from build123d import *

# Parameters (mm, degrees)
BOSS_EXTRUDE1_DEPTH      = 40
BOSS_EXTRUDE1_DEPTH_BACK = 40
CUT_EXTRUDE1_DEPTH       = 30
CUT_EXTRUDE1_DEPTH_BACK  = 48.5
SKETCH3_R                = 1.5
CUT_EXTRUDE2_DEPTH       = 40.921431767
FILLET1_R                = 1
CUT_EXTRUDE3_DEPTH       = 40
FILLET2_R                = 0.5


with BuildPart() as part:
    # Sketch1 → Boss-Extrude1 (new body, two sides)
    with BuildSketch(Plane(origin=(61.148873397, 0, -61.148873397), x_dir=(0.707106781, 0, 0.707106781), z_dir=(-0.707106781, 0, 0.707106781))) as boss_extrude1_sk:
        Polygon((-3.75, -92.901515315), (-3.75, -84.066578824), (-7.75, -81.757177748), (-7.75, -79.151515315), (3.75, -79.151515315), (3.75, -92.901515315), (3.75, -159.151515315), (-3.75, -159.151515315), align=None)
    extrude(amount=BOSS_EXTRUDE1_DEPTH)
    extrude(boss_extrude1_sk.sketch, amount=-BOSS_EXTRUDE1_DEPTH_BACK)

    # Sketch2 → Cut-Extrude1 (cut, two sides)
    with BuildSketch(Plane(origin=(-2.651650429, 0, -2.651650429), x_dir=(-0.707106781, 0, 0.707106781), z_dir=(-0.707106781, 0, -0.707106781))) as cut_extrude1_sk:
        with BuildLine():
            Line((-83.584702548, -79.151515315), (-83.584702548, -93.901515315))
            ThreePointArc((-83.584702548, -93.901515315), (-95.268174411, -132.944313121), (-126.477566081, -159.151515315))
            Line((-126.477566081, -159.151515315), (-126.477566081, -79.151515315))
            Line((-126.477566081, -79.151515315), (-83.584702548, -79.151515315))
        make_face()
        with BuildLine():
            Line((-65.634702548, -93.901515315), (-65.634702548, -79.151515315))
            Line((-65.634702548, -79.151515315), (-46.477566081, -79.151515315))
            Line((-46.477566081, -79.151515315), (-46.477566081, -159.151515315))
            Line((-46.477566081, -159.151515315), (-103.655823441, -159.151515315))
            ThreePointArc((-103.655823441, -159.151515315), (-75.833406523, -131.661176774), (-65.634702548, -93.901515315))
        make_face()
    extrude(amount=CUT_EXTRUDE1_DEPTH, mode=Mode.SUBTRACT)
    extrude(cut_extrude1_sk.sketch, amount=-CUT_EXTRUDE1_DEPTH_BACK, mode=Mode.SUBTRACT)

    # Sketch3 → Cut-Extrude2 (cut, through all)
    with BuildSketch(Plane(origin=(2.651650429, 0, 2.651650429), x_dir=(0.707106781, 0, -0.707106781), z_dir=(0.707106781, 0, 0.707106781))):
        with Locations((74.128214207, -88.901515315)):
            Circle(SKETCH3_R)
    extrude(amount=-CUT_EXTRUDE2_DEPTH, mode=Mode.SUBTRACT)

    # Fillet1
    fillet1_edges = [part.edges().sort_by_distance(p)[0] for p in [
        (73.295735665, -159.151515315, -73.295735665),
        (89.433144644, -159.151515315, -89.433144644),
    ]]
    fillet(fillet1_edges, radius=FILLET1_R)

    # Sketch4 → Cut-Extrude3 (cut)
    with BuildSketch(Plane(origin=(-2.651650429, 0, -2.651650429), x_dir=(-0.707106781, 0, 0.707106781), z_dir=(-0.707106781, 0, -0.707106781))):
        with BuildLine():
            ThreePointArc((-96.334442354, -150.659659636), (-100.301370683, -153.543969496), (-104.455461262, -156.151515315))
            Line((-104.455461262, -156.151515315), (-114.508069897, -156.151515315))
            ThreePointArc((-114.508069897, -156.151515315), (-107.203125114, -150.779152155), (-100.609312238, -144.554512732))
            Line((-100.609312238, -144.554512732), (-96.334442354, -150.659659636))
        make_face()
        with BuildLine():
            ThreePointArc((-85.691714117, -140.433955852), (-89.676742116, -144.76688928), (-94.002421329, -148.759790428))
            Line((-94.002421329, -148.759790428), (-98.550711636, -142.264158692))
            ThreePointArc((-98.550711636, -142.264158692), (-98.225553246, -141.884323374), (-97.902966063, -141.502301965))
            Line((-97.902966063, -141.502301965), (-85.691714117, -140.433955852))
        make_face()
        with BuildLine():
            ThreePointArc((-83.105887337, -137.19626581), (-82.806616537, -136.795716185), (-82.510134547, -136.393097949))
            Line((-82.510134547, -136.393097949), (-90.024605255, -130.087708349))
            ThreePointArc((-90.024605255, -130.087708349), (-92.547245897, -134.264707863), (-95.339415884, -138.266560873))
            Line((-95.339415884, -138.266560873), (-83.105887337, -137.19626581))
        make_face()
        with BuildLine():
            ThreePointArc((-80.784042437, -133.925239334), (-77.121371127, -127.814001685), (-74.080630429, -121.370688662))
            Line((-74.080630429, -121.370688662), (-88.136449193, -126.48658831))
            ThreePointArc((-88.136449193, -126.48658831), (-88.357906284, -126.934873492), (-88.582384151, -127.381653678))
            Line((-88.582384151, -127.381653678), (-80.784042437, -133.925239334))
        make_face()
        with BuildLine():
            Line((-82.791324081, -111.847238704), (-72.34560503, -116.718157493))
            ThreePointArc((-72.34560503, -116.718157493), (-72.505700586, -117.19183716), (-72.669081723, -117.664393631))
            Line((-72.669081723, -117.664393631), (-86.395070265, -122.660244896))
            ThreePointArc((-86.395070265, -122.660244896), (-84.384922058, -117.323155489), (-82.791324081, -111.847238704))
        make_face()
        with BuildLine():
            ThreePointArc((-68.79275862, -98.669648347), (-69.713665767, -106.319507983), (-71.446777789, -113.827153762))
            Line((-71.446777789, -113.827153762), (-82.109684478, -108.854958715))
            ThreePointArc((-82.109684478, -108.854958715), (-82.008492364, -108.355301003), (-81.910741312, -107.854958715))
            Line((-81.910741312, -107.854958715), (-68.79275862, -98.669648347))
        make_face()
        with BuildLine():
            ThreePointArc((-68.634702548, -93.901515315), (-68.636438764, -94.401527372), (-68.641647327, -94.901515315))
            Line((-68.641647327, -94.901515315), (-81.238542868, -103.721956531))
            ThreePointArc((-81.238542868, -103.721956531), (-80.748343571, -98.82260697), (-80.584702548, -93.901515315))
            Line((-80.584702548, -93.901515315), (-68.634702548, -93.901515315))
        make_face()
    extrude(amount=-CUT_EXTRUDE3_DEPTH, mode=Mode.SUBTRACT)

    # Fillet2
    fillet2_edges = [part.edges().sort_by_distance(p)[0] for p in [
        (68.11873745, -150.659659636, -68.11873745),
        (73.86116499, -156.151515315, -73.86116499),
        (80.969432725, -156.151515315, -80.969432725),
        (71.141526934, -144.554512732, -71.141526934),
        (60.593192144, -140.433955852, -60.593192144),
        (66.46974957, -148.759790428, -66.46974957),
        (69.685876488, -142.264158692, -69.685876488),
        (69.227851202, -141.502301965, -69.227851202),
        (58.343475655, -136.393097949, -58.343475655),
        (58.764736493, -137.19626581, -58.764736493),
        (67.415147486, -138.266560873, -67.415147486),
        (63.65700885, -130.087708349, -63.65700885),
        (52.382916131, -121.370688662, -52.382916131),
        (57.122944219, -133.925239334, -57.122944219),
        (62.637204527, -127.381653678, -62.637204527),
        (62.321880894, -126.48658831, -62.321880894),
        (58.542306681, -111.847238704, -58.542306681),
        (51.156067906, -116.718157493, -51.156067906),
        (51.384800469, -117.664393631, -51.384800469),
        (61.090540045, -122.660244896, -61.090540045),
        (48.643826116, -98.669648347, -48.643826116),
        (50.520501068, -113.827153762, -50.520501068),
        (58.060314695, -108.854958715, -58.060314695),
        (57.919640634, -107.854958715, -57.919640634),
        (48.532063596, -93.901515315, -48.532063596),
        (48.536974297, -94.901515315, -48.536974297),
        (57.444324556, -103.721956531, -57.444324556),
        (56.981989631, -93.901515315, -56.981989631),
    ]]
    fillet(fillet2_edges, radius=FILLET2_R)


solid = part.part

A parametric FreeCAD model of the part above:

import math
import FreeCAD as App
import Part
import Sketcher
Q = App.Units.Quantity


def edges_at(feature, points):
    """Names of the edges that pass closest to the given points."""
    edges = feature.Shape.Edges
    near = lambda p: min(range(len(edges)), key=lambda i: edges[i].distToShape(Part.Vertex(*p))[0])
    return sorted({f"Edge{near(p) + 1}" for p in points})


def add_polygon(sketch, points):
    """Adds a closed chain of lines whose ends are joined by coincident constraints."""
    first, n = sketch.GeometryCount, len(points)
    for a, b in zip(points, points[1:] + points[:1]):
        sketch.addGeometry(Part.LineSegment(App.Vector(*a, 0), App.Vector(*b, 0)), False)
    for i in range(n):
        sketch.addConstraint(Sketcher.Constraint("Coincident", first + i, 2, first + (i + 1) % n, 1))

doc = App.newDocument("Part")
params = doc.addObject("Spreadsheet::Sheet", "Params")
for row, (alias, value) in enumerate([
    ("sketch1_height", "80 mm"),
    ("sketch1_width", "7.5 mm"),
    ("sketch1_width2", "11.5 mm"),
    ("pad1_length", "40 mm"),
    ("pad1_length2", "40 mm"),
    ("sketch2_radius", "75 mm"),
    ("sketch2_height", "80 mm"),
    ("sketch2_height2", "14.75 mm"),
    ("sketch3_diameter", "3 mm"),
    ("fillet_radius", "1 mm"),
    ("sketch4_radius", "72 mm"),
    ("sketch4_radius2", "72 mm"),
    ("sketch4_radius3", "72 mm"),
    ("sketch4_radius4", "72 mm"),
    ("sketch4_width", "11.95 mm"),
    ("pocket3_length", "40 mm"),
    ("fillet2_radius", "0.5 mm"),
], start=1):
    params.set(f"A{row}", alias)
    params.set(f"B{row}", "=" + value)
    params.setAlias(f"B{row}", alias)

body = doc.addObject("PartDesign::Body", "Body")

# Sketch on an angled plane
sketch1 = doc.addObject("Sketcher::SketchObject", "Sketch")
body.addObject(sketch1)
sketch1.Placement = App.Placement(App.Vector(61.148873, 0, -61.148873), App.Rotation(App.Vector(0.707106781, 0, 0.707106781), App.Vector(0, 0.999999999, 0), App.Vector(-0.707106781, 0, 0.707106781), "ZXY"))
add_polygon(sketch1, [(-3.7, -84.1), (-3.7, -159.2), (3.7, -159.2), (3.7, -79.2), (-7.7, -79.2), (-7.7, -81.8)])  # lines 0-5
sketch1.addConstraint(Sketcher.Constraint("Vertical", 0))
sketch1.addConstraint(Sketcher.Constraint("Horizontal", 1))
sketch1.addConstraint(Sketcher.Constraint("Vertical", 2))
sketch1.addConstraint(Sketcher.Constraint("Horizontal", 3))
sketch1.addConstraint(Sketcher.Constraint("Vertical", 4))
sketch1.addConstraint(Sketcher.Constraint("DistanceY", 2, 1, 2, 2, 80.0))
sketch1.addConstraint(Sketcher.Constraint("Angle", 5, Q("-30 deg")))
sketch1.addConstraint(Sketcher.Constraint("DistanceX", 1, 1, 1, 2, 7.5))
sketch1.addConstraint(Sketcher.Constraint("DistanceX", 3, 2, 3, 1, 11.5))
sketch1.addConstraint(Sketcher.Constraint("DistanceX", 0, 2, -1, 1, 3.75))
sketch1.addConstraint(Sketcher.Constraint("DistanceY", 0, 2, 0, 1, 75.084936))
sketch1.addConstraint(Sketcher.Constraint("DistanceY", 5, 2, -1, 1, 84.066579))
sketch1.setExpression("Constraints[11]", "Params.sketch1_height")
sketch1.setExpression("Constraints[13]", "Params.sketch1_width")
sketch1.setExpression("Constraints[14]", "Params.sketch1_width2")
pad1 = doc.addObject("PartDesign::Pad", "Pad")
body.addObject(pad1)
pad1.Profile = sketch1
pad1.Type = "TwoLengths"
pad1.setExpression("Length", "Params.pad1_length")
pad1.setExpression("Length2", "Params.pad1_length2")

# Sketch on an angled plane
sketch2 = doc.addObject("Sketcher::SketchObject", "Sketch001")
body.addObject(sketch2)
sketch2.Placement = App.Placement(App.Vector(-2.65165, 0, -2.65165), App.Rotation(App.Vector(-0.707106781, 0, 0.707106781), App.Vector(0, 0.999999999, 0), App.Vector(-0.707106781, 0, -0.707106781), "ZXY"))
sketch2.addGeometry(Part.LineSegment(App.Vector(-84, -94, 0), App.Vector(-84, -79, 0)), False)
sketch2.addGeometry(Part.LineSegment(App.Vector(-84, -79, 0), App.Vector(-126, -79, 0)), False)
sketch2.addGeometry(Part.LineSegment(App.Vector(-126, -79, 0), App.Vector(-126, -159, 0)), False)
sketch2.addGeometry(Part.ArcOfCircle(Part.Circle(App.Vector(-155, -94, 0), App.Vector(0, 0, 1), 71), math.radians(-67), math.radians(0)), False)
sketch2.addGeometry(Part.LineSegment(App.Vector(-66, -79, 0), App.Vector(-66, -94, 0)), False)
sketch2.addGeometry(Part.ArcOfCircle(Part.Circle(App.Vector(-141, -94, 0), App.Vector(0, 0, 1), 75), math.radians(-60), math.radians(0)), False)
sketch2.addGeometry(Part.LineSegment(App.Vector(-104, -159, 0), App.Vector(-46, -159, 0)), False)
sketch2.addGeometry(Part.LineSegment(App.Vector(-46, -159, 0), App.Vector(-46, -79, 0)), False)
sketch2.addGeometry(Part.LineSegment(App.Vector(-46, -79, 0), App.Vector(-66, -79, 0)), False)
sketch2.addConstraint(Sketcher.Constraint("Coincident", 0, 2, 1, 1))
sketch2.addConstraint(Sketcher.Constraint("Coincident", 1, 2, 2, 1))
sketch2.addConstraint(Sketcher.Constraint("Coincident", 2, 2, 3, 1))
sketch2.addConstraint(Sketcher.Constraint("Tangent", 3, 2, 0, 1))
sketch2.addConstraint(Sketcher.Constraint("Tangent", 4, 2, 5, 2))
sketch2.addConstraint(Sketcher.Constraint("Coincident", 5, 1, 6, 1))
sketch2.addConstraint(Sketcher.Constraint("Coincident", 6, 2, 7, 1))
sketch2.addConstraint(Sketcher.Constraint("Coincident", 7, 2, 8, 1))
sketch2.addConstraint(Sketcher.Constraint("Coincident", 8, 2, 4, 1))
sketch2.addConstraint(Sketcher.Constraint("Vertical", 0))
sketch2.addConstraint(Sketcher.Constraint("Horizontal", 1))
sketch2.addConstraint(Sketcher.Constraint("Vertical", 2))
sketch2.addConstraint(Sketcher.Constraint("Vertical", 4))
sketch2.addConstraint(Sketcher.Constraint("Horizontal", 6))
sketch2.addConstraint(Sketcher.Constraint("Vertical", 7))
sketch2.addConstraint(Sketcher.Constraint("Horizontal", 8))
sketch2.addConstraint(Sketcher.Constraint("Horizontal", 3, 3, 5, 3))
sketch2.addConstraint(Sketcher.Constraint("Horizontal", 2, 2, 5, 1))
sketch2.addConstraint(Sketcher.Constraint("Horizontal", 1, 2, 7, 2))
sketch2.addConstraint(Sketcher.Constraint("Radius", 5, 75.0))
sketch2.addConstraint(Sketcher.Constraint("DistanceY", 2, 2, 2, 1, 80.0))
sketch2.addConstraint(Sketcher.Constraint("DistanceX", 2, 2, 6, 2, 80.0))
sketch2.addConstraint(Sketcher.Constraint("DistanceY", 0, 1, 0, 2, 14.75))
sketch2.addConstraint(Sketcher.Constraint("Radius", 3, 71.076628))
sketch2.addConstraint(Sketcher.Constraint("DistanceX", 5, 3, 0, 2, 57.05))
sketch2.addConstraint(Sketcher.Constraint("DistanceX", 3, 3, -1, 1, 154.661331))
sketch2.addConstraint(Sketcher.Constraint("DistanceY", 3, 3, -1, 1, 93.901515))
sketch2.setExpression("Constraints[19]", "Params.sketch2_radius")
sketch2.setExpression("Constraints[20]", "Params.sketch2_height")
sketch2.setExpression("Constraints[22]", "Params.sketch2_height2")
pocket1 = doc.addObject("PartDesign::Pocket", "Pocket")
body.addObject(pocket1)
pocket1.Profile = sketch2
pocket1.Type = "ThroughAll"
pocket1.Midplane = True

# Sketch on an angled plane
sketch3 = doc.addObject("Sketcher::SketchObject", "Sketch002")
body.addObject(sketch3)
sketch3.Placement = App.Placement(App.Vector(2.65165, 0, 2.65165), App.Rotation(App.Vector(0.707106781, 0, -0.707106781), App.Vector(0, 0.999999999, 0), App.Vector(0.707106781, 0, 0.707106781), "ZXY"))
sketch3.addGeometry(Part.Circle(App.Vector(74.1, -88.9, 0), App.Vector(0, 0, 1), 1.5), False)
sketch3.addConstraint(Sketcher.Constraint("Diameter", 0, 3.0))
sketch3.addConstraint(Sketcher.Constraint("DistanceX", -1, 1, 0, 3, 74.128214))
sketch3.addConstraint(Sketcher.Constraint("DistanceY", 0, 3, -1, 1, 88.901515))
sketch3.setExpression("Constraints[0]", "Params.sketch3_diameter")
pocket2 = doc.addObject("PartDesign::Pocket", "Pocket001")
body.addObject(pocket2)
pocket2.Profile = sketch3
pocket2.Type = "ThroughAll"
doc.recompute()

fillet = doc.addObject("PartDesign::Fillet", "Fillet")
body.addObject(fillet)
fillet.Base = (pocket2, edges_at(pocket2, [(73.296, -159.152, -73.296), (89.433, -159.152, -89.433)]))
fillet.setExpression("Radius", "Params.fillet_radius")

# Sketch on an angled plane
sketch4 = doc.addObject("Sketcher::SketchObject", "Sketch003")
body.addObject(sketch4)
sketch4.Placement = App.Placement(App.Vector(-2.65165, 0, -2.65165), App.Rotation(App.Vector(-0.707106781, 0, 0.707106781), App.Vector(0, 0.999999999, 0), App.Vector(-0.707106781, 0, -0.707106781), "ZXY"))
sketch4.addGeometry(Part.ArcOfCircle(Part.Circle(App.Vector(-140.634702, -93.901515, 0), App.Vector(0, 0, 1), 72), math.radians(-59.835161), math.radians(-52.02763)), False)
sketch4.addGeometry(Part.LineSegment(App.Vector(-96.334442, -150.659659, 0), App.Vector(-100.609312, -144.554513, 0)), False)
sketch4.addGeometry(Part.ArcOfCircle(Part.Circle(App.Vector(-154.661331, -93.901515, 0), App.Vector(0, 0, 1), 74.076628), math.radians(-57.176677), math.radians(-43.14067)), False)
sketch4.addGeometry(Part.LineSegment(App.Vector(-114.50807, -156.151515, 0), App.Vector(-104.455461, -156.151515, 0)), False)
sketch4.addGeometry(Part.ArcOfCircle(Part.Circle(App.Vector(-140.634703, -93.901515, 0), App.Vector(0, 0, 1), 72), math.radians(-49.633798), math.radians(-40.262006)), False)
sketch4.addGeometry(Part.LineSegment(App.Vector(-85.691714, -140.433956, 0), App.Vector(-97.902966, -141.502302, 0)), False)
sketch4.addGeometry(Part.ArcOfCircle(Part.Circle(App.Vector(-154.66133, -93.901516, 0), App.Vector(0, 0, 1), 74.076627), math.radians(-40.758579), math.radians(-39.985106)), False)
sketch4.addGeometry(Part.LineSegment(App.Vector(-98.550712, -142.264159, 0), App.Vector(-94.002421, -148.75979, 0)), False)
sketch4.addGeometry(Part.ArcOfCircle(Part.Circle(App.Vector(-140.634715, -93.901506, 0), App.Vector(0, 0, 1), 72.000015), math.radians(-36.964206), math.radians(-36.168425)), False)
sketch4.addGeometry(Part.LineSegment(App.Vector(-82.510135, -136.393098, 0), App.Vector(-90.024605, -130.087708, 0)), False)
sketch4.addGeometry(Part.ArcOfCircle(Part.Circle(App.Vector(-154.661331, -93.901515, 0), App.Vector(0, 0, 1), 74.076628), math.radians(-36.79169), math.radians(-29.241826)), False)
sketch4.addGeometry(Part.LineSegment(App.Vector(-95.339416, -138.266561, 0), App.Vector(-83.105887, -137.196266, 0)), False)
sketch4.addGeometry(Part.ArcOfCircle(Part.Circle(App.Vector(-140.634703, -93.901515, 0), App.Vector(0, 0, 1), 72), math.radians(-33.771697), math.radians(-22.427637)), False)
sketch4.addGeometry(Part.LineSegment(App.Vector(-74.08063, -121.370689, 0), App.Vector(-88.136449, -126.486588, 0)), False)
sketch4.addGeometry(Part.ArcOfCircle(Part.Circle(App.Vector(-154.661326, -93.901518, 0), App.Vector(0, 0, 1), 74.076623), math.radians(-26.869909), math.radians(-26.096436)), False)
sketch4.addGeometry(Part.LineSegment(App.Vector(-88.582384, -127.381654, 0), App.Vector(-80.784042, -133.925239, 0)), False)
sketch4.addGeometry(Part.LineSegment(App.Vector(-72.345605, -116.718157, 0), App.Vector(-82.791324, -111.847239, 0)), False)
sketch4.addGeometry(Part.ArcOfCircle(Part.Circle(App.Vector(-154.661331, -93.901515, 0), App.Vector(0, 0, 1), 74.076628), math.radians(-22.844376), math.radians(-14.019902)), False)
sketch4.addGeometry(Part.LineSegment(App.Vector(-86.39507, -122.660245, 0), App.Vector(-72.669082, -117.664394, 0)), False)
sketch4.addGeometry(Part.ArcOfCircle(Part.Circle(App.Vector(-140.63472, -93.901509, 0), App.Vector(0, 0, 1), 72.000018), math.radians(-19.271202), math.radians(-18.475421)), False)
sketch4.addGeometry(Part.ArcOfCircle(Part.Circle(App.Vector(-140.634702, -93.901515, 0), App.Vector(0, 0, 1), 72), math.radians(-16.066031), math.radians(-3.797139)), False)
sketch4.addGeometry(Part.LineSegment(App.Vector(-68.792759, -98.669648, 0), App.Vector(-81.910741, -107.854959, 0)), False)
sketch4.addGeometry(Part.ArcOfCircle(Part.Circle(App.Vector(-154.661341, -93.901513, 0), App.Vector(0, 0, 1), 74.076639), math.radians(-11.646013), math.radians(-10.857382)), False)
sketch4.addGeometry(Part.LineSegment(App.Vector(-82.109684, -108.854959, 0), App.Vector(-71.446778, -113.827154, 0)), False)
sketch4.addGeometry(Part.ArcOfCircle(Part.Circle(App.Vector(-140.63472, -93.901515, 0), App.Vector(0, 0, 1), 72.000017), math.radians(-0.7958), math.radians(0)), False)
sketch4.addGeometry(Part.LineSegment(App.Vector(-68.634703, -93.901515, 0), App.Vector(-80.584703, -93.901515, 0)), False)
sketch4.addGeometry(Part.ArcOfCircle(Part.Circle(App.Vector(-154.661419, -93.901509, 0), App.Vector(0, 0, 1), 74.076717), math.radians(-7.618204), math.radians(-0.000005)), False)
sketch4.addGeometry(Part.LineSegment(App.Vector(-81.238543, -103.721956, 0), App.Vector(-68.641647, -94.901515, 0)), False)
sketch4.addConstraint(Sketcher.Constraint("Coincident", 0, 2, 1, 1))
sketch4.addConstraint(Sketcher.Constraint("Coincident", 1, 2, 2, 2))
sketch4.addConstraint(Sketcher.Constraint("Coincident", 2, 1, 3, 1))
sketch4.addConstraint(Sketcher.Constraint("Coincident", 3, 2, 0, 1))
sketch4.addConstraint(Sketcher.Constraint("Coincident", 4, 2, 5, 1))
sketch4.addConstraint(Sketcher.Constraint("Coincident", 5, 2, 6, 2))
sketch4.addConstraint(Sketcher.Constraint("Coincident", 6, 1, 7, 1))
sketch4.addConstraint(Sketcher.Constraint("Coincident", 7, 2, 4, 1))
sketch4.addConstraint(Sketcher.Constraint("Coincident", 8, 2, 9, 1))
sketch4.addConstraint(Sketcher.Constraint("Coincident", 9, 2, 10, 2))
sketch4.addConstraint(Sketcher.Constraint("Coincident", 10, 1, 11, 1))
sketch4.addConstraint(Sketcher.Constraint("Coincident", 11, 2, 8, 1))
sketch4.addConstraint(Sketcher.Constraint("Coincident", 12, 2, 13, 1))
sketch4.addConstraint(Sketcher.Constraint("Coincident", 13, 2, 14, 2))
sketch4.addConstraint(Sketcher.Constraint("Coincident", 14, 1, 15, 1))
sketch4.addConstraint(Sketcher.Constraint("Coincident", 15, 2, 12, 1))
sketch4.addConstraint(Sketcher.Constraint("Coincident", 16, 2, 17, 2))
sketch4.addConstraint(Sketcher.Constraint("Coincident", 17, 1, 18, 1))
sketch4.addConstraint(Sketcher.Constraint("Coincident", 18, 2, 19, 1))
sketch4.addConstraint(Sketcher.Constraint("Coincident", 19, 2, 16, 1))
sketch4.addConstraint(Sketcher.Constraint("Coincident", 20, 2, 21, 1))
sketch4.addConstraint(Sketcher.Constraint("Coincident", 21, 2, 22, 2))
sketch4.addConstraint(Sketcher.Constraint("Coincident", 22, 1, 23, 1))
sketch4.addConstraint(Sketcher.Constraint("Coincident", 23, 2, 20, 1))
sketch4.addConstraint(Sketcher.Constraint("Coincident", 24, 2, 25, 1))
sketch4.addConstraint(Sketcher.Constraint("Coincident", 25, 2, 26, 2))
sketch4.addConstraint(Sketcher.Constraint("Coincident", 26, 1, 27, 1))
sketch4.addConstraint(Sketcher.Constraint("Coincident", 27, 2, 24, 1))
sketch4.addConstraint(Sketcher.Constraint("Horizontal", 3))
sketch4.addConstraint(Sketcher.Constraint("Horizontal", 25))
sketch4.addConstraint(Sketcher.Constraint("Coincident", 4, 3, 0, 3))
sketch4.addConstraint(Sketcher.Constraint("Coincident", 6, 3, 2, 3))
sketch4.addConstraint(Sketcher.Constraint("Coincident", 10, 3, 2, 3))
sketch4.addConstraint(Sketcher.Constraint("Coincident", 12, 3, 0, 3))
sketch4.addConstraint(Sketcher.Constraint("Coincident", 14, 3, 2, 3))
sketch4.addConstraint(Sketcher.Constraint("Coincident", 17, 3, 2, 3))
sketch4.addConstraint(Sketcher.Constraint("Coincident", 19, 3, 8, 3))
sketch4.addConstraint(Sketcher.Constraint("Coincident", 20, 3, 0, 3))
sketch4.addConstraint(Sketcher.Constraint("Coincident", 24, 3, 19, 3))
sketch4.addConstraint(Sketcher.Constraint("Radius", 0, 72.0))
sketch4.addConstraint(Sketcher.Constraint("Radius", 4, 72.0))
sketch4.addConstraint(Sketcher.Constraint("Radius", 12, 72.0))
sketch4.addConstraint(Sketcher.Constraint("Radius", 20, 72.0))
sketch4.addConstraint(Sketcher.Constraint("DistanceY", 22, 1, 21, 2, 1.0))
sketch4.addConstraint(Sketcher.Constraint("DistanceY", 27, 2, 24, 2, 1.0))
sketch4.addConstraint(Sketcher.Constraint("DistanceX", 25, 2, 25, 1, 11.95))
sketch4.addConstraint(Sketcher.Constraint("Radius", 2, 74.076628))
sketch4.addConstraint(Sketcher.Constraint("Radius", 10, 74.076628))
sketch4.addConstraint(Sketcher.Constraint("Radius", 17, 74.076628))
sketch4.addConstraint(Sketcher.Constraint("Radius", 19, 72.000018))
sketch4.addConstraint(Sketcher.Constraint("Radius", 22, 74.076639))
sketch4.addConstraint(Sketcher.Constraint("DistanceY", 2, 1, 0, 3, 62.25))
sketch4.addConstraint(Sketcher.Constraint("Radius", 6, 74.076627))
sketch4.addConstraint(Sketcher.Constraint("Radius", 8, 72.000015))
sketch4.addConstraint(Sketcher.Constraint("Radius", 14, 74.076623))
sketch4.addConstraint(Sketcher.Constraint("Radius", 24, 72.000017))
sketch4.addConstraint(Sketcher.Constraint("Radius", 26, 74.076717))
sketch4.addConstraint(Sketcher.Constraint("DistanceY", 15, 2, 16, 2, 22.078001))
sketch4.addConstraint(Sketcher.Constraint("Distance", 21, 16.0141))
sketch4.addConstraint(Sketcher.Constraint("DistanceX", 3, 1, 3, 2, 10.052609))
sketch4.addConstraint(Sketcher.Constraint("DistanceY", 5, 2, -1, 1, 141.502302))
sketch4.addConstraint(Sketcher.Constraint("DistanceX", 1, 2, 4, 2, 14.917598))
sketch4.addConstraint(Sketcher.Constraint("DistanceX", 1, 2, 6, 1, 2.058601))
sketch4.addConstraint(Sketcher.Constraint("DistanceY", 0, 2, 6, 1, 8.395501))
sketch4.addConstraint(Sketcher.Constraint("DistanceX", 10, 1, 4, 2, 9.647702))
sketch4.addConstraint(Sketcher.Constraint("DistanceY", 19, 2, 21, 2, 8.863199))
sketch4.addConstraint(Sketcher.Constraint("DistanceX", 21, 2, 26, 1, 0.672198))
sketch4.addConstraint(Sketcher.Constraint("Distance", 1, 7.453008))
sketch4.addConstraint(Sketcher.Constraint("Distance", 11, 12.280259))
sketch4.addConstraint(Sketcher.Constraint("Distance", 13, 14.95789))
sketch4.addConstraint(Sketcher.Constraint("Distance", 18, 14.606892))
sketch4.addConstraint(Sketcher.Constraint("Distance", 27, 15.37797))
sketch4.addConstraint(Sketcher.Constraint("DistanceX", 2, 3, -1, 1, 154.661331))
sketch4.addConstraint(Sketcher.Constraint("DistanceX", 19, 3, -1, 1, 140.63472))
sketch4.addConstraint(Sketcher.Constraint("DistanceY", 19, 3, -1, 1, 93.901509))
sketch4.addConstraint(Sketcher.Constraint("DistanceX", 22, 3, -1, 1, 154.661341))
sketch4.addConstraint(Sketcher.Constraint("DistanceY", 26, 3, -1, 1, 93.901509))
sketch4.addConstraint(Sketcher.Constraint("DistanceY", 0, 2, -1, 1, 150.65966))
sketch4.addConstraint(Sketcher.Constraint("DistanceX", 2, 1, -1, 1, 114.50807))
sketch4.addConstraint(Sketcher.Constraint("DistanceX", 7, 2, -1, 1, 94.002421))
sketch4.addConstraint(Sketcher.Constraint("DistanceY", 9, 2, -1, 1, 130.087708))
sketch4.addConstraint(Sketcher.Constraint("DistanceX", 12, 2, -1, 1, 74.08063))
sketch4.addConstraint(Sketcher.Constraint("DistanceY", 15, 2, -1, 1, 133.925239))
sketch4.addConstraint(Sketcher.Constraint("DistanceX", 17, 1, -1, 1, 86.39507))
sketch4.addConstraint(Sketcher.Constraint("DistanceX", 20, 2, -1, 1, 68.792759))
sketch4.addConstraint(Sketcher.Constraint("DistanceX", 21, 2, -1, 1, 81.910741))
sketch4.addConstraint(Sketcher.Constraint("DistanceX", 4, 2, 8, 2, 3.18158))
sketch4.addConstraint(Sketcher.Constraint("DistanceX", 9, 2, 14, 1, 1.442221))
sketch4.addConstraint(Sketcher.Constraint("DistanceY", 18, 2, 23, 2, 3.83724))
sketch4.setExpression("Constraints[39]", "Params.sketch4_radius")
sketch4.setExpression("Constraints[40]", "Params.sketch4_radius2")
sketch4.setExpression("Constraints[41]", "Params.sketch4_radius3")
sketch4.setExpression("Constraints[42]", "Params.sketch4_radius4")
sketch4.setExpression("Constraints[45]", "Params.sketch4_width")
pocket3 = doc.addObject("PartDesign::Pocket", "Pocket002")
body.addObject(pocket3)
pocket3.Profile = sketch4
pocket3.setExpression("Length", "Params.pocket3_length")
doc.recompute()

fillet2 = doc.addObject("PartDesign::Fillet", "Fillet001")
body.addObject(fillet2)
fillet2.Base = (pocket3, edges_at(pocket3, [
    (68.119, -150.66, -68.119),
    (73.861, -156.152, -73.861),
    (80.969, -156.152, -80.969),
    (71.142, -144.555, -71.142),
    (60.593, -140.434, -60.593),
    (66.47, -148.76, -66.47),
    (69.686, -142.264, -69.686),
    (69.228, -141.502, -69.228),
    (58.343, -136.393, -58.343),
    (58.765, -137.196, -58.765),
    (67.415, -138.267, -67.415),
    (63.657, -130.088, -63.657),
    (52.383, -121.371, -52.383),
    (57.123, -133.925, -57.123),
    (62.637, -127.382, -62.637),
    (62.322, -126.487, -62.322),
    (58.542, -111.847, -58.542),
    (51.156, -116.718, -51.156),
    (51.385, -117.664, -51.385),
    (61.091, -122.66, -61.091),
    (48.644, -98.67, -48.644),
    (50.521, -113.827, -50.521),
    (58.06, -108.855, -58.06),
    (57.92, -107.855, -57.92),
    (48.532, -93.902, -48.532),
    (48.537, -94.902, -48.537),
    (57.444, -103.722, -57.444),
    (56.982, -93.902, -56.982),
]))
fillet2.setExpression("Radius", "Params.fillet2_radius")

doc.recompute()
